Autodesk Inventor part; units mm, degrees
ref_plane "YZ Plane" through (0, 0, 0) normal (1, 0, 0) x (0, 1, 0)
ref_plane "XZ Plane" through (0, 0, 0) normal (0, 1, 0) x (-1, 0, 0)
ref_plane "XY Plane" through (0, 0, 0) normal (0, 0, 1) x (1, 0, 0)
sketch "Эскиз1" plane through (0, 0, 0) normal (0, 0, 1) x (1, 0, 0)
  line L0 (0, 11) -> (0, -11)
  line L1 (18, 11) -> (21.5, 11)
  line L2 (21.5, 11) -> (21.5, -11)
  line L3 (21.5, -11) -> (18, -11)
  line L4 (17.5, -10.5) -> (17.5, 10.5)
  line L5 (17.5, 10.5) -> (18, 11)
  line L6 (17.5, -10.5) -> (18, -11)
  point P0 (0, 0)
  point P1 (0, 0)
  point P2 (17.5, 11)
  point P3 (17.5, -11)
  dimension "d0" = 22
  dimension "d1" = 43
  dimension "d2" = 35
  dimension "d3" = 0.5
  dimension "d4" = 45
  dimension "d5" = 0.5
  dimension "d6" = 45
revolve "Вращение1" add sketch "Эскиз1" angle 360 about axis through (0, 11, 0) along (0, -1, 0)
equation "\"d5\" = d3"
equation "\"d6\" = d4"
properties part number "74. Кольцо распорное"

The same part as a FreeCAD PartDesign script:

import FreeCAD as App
import Part
import Sketcher
Q = App.Units.Quantity


def add_polygon(sketch, points):
    """Adds a closed chain of lines whose ends are joined by coincident constraints."""
    first, n = sketch.GeometryCount, len(points)
    for a, b in zip(points, points[1:] + points[:1]):
        sketch.addGeometry(Part.LineSegment(App.Vector(*a, 0), App.Vector(*b, 0)), False)
    for i in range(n):
        sketch.addConstraint(Sketcher.Constraint("Coincident", first + i, 2, first + (i + 1) % n, 1))

doc = App.newDocument("Part")
params = doc.addObject("Spreadsheet::Sheet", "Params")
for row, (alias, value) in enumerate([
    ("sketch1_height", "22 mm"),
    ("sketch1_width", "3.5 mm"),
    ("revolution_angle", "360 deg"),
], start=1):
    params.set(f"A{row}", alias)
    params.set(f"B{row}", "=" + value)
    params.setAlias(f"B{row}", alias)

body = doc.addObject("PartDesign::Body", "Body")

# Sketch on XY plane
sketch1 = body.newObject("Sketcher::SketchObject", "Sketch")
sketch1.AttachmentSupport = (doc.getObject("XY_Plane"), [""])
sketch1.MapMode = "FlatFace"
add_polygon(sketch1, [(21.5, 11), (18, 11), (17.5, 10.5), (17.5, -10.5), (18, -11), (21.5, -11)])  # lines 0-5
sketch1.addConstraint([
    Sketcher.Constraint("Horizontal", 0),
    Sketcher.Constraint("Vertical", 2),
    Sketcher.Constraint("Horizontal", 4),
    Sketcher.Constraint("Vertical", 5),
    Sketcher.Constraint("Symmetric", 0, 2, 3, 2, -1),
    Sketcher.Constraint("Perpendicular", 1, 3),
    Sketcher.Constraint("Equal", 1, 3),
    Sketcher.Constraint("DistanceY", 5, 1, 5, 2, Q("22 mm")),
    Sketcher.Constraint("DistanceX", 1, 2, 0, 2, Q("0.5 mm")),
    Sketcher.Constraint("DistanceX", 0, 2, 0, 1, Q("3.5 mm")),
    Sketcher.Constraint("DistanceX", -1, 1, 0, 2, Q("18 mm")),
])
sketch1.setExpression("Constraints[13]", "Params.sketch1_height")
sketch1.setExpression("Constraints[15]", "Params.sketch1_width")
revolution = body.newObject("PartDesign::Revolution", "Revolution")
revolution.Profile = sketch1
revolution.ReferenceAxis = (sketch1, ["V_Axis"])
revolution.setExpression("Angle", "Params.revolution_angle")

doc.recompute()
